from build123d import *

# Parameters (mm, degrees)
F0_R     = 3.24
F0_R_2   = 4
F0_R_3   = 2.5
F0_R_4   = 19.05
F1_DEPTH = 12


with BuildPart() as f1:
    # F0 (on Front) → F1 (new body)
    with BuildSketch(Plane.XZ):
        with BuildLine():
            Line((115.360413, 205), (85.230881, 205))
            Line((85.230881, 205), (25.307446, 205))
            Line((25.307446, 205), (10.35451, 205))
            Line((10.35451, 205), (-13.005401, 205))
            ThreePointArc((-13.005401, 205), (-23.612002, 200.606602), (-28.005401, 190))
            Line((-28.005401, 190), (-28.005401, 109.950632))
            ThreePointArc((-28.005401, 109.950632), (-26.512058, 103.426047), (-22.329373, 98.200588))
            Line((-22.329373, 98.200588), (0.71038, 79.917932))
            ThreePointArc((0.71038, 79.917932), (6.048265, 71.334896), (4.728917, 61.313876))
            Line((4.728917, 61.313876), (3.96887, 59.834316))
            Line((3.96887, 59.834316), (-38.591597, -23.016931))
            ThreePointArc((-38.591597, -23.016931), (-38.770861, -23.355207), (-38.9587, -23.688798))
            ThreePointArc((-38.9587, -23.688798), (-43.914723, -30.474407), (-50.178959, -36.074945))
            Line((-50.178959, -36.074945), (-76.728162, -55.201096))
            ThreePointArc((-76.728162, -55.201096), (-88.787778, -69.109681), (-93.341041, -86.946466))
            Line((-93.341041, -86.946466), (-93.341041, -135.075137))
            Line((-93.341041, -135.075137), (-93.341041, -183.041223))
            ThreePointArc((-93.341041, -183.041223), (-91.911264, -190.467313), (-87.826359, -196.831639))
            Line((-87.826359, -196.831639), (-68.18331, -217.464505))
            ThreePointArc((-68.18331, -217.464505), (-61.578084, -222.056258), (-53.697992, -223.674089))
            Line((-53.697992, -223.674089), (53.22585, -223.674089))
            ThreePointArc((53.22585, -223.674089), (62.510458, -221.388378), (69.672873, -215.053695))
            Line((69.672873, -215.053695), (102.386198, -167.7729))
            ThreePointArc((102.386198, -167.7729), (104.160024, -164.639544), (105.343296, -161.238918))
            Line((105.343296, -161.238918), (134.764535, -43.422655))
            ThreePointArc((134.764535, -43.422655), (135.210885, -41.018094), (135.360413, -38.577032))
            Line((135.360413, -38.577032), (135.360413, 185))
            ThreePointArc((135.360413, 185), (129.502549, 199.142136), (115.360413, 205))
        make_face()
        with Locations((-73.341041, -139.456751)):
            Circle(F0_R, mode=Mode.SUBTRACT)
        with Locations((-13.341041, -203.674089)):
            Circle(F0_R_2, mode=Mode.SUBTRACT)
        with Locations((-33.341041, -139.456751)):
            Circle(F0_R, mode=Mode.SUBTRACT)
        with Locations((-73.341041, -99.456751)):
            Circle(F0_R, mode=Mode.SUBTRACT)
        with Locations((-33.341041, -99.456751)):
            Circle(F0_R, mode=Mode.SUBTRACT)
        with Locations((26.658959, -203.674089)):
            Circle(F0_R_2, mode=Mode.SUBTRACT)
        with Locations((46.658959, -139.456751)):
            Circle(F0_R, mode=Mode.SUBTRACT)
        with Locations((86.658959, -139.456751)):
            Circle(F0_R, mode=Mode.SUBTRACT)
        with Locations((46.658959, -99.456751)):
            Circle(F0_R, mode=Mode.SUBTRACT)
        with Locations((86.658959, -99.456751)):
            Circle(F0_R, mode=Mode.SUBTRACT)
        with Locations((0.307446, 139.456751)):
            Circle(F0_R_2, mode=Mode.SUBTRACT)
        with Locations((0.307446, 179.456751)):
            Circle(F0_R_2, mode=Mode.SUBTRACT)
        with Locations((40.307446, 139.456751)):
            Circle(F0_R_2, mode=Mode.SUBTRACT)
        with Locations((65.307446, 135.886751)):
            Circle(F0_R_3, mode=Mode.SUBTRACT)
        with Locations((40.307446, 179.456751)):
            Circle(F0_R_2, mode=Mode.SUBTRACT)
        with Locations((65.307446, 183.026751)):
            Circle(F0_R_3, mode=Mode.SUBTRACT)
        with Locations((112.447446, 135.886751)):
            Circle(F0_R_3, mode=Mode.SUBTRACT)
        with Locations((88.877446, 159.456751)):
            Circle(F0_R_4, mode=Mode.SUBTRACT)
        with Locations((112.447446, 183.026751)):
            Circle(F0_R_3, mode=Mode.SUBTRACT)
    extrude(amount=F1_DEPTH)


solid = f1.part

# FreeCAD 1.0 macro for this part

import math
import FreeCAD as App
import Part
import Sketcher

V = App.Vector
Q = App.Units.Quantity

doc = App.newDocument("Part")
body = doc.addObject("PartDesign::Body", "Body")

sketch1 = body.newObject("Sketcher::SketchObject", "Sketch")
sketch1.AttachmentSupport = (doc.getObject("XZ_Plane"), [""])
sketch1.MapMode = "FlatFace"
sketch1.addGeometry(Part.LineSegment(V(115.360413, 205, 0), V(-13.005401, 205, 0)), False)
sketch1.addGeometry(Part.ArcOfCircle(Part.Circle(V(-13.0054, 189.999999, 0), V(0, 0, 1), 15.000001), math.radians(90.000003), math.radians(179.999997)), False)
sketch1.addGeometry(Part.LineSegment(V(-28.005401, 190, 0), V(-28.005401, 109.950632, 0)), False)
sketch1.addGeometry(Part.ArcOfCircle(Part.Circle(V(-13.005401, 109.950633, 0), V(0, 0, 1), 15), math.radians(-179.999998), math.radians(-128.432933)), False)
sketch1.addGeometry(Part.LineSegment(V(-22.329373, 98.200588, 0), V(0.71038, 79.917932, 0)), False)
sketch1.addGeometry(Part.ArcOfCircle(Part.Circle(V(-8.613594, 68.167886, 0), V(0, 0, 1), 15.000002), math.radians(-27.189438), math.radians(51.567063)), False)
sketch1.addGeometry(Part.LineSegment(V(4.728917, 61.313876, 0), V(3.96887, 59.834316, 0)), False)
sketch1.addGeometry(Part.LineSegment(V(3.96887, 59.834316, 0), V(-38.591597, -23.016931, 0)), False)
sketch1.addGeometry(Part.ArcOfCircle(Part.Circle(V(-51.933711, -16.163126, 0), V(0, 0, 1), 14.999555), math.radians(-30.114279), math.radians(-27.189432)), False)
sketch1.addGeometry(Part.ArcOfCircle(Part.Circle(V(-73.559777, -3.619795, 0), V(0, 0, 1), 39.999992), math.radians(-54.230873), math.radians(-30.114202)), False)
sketch1.addGeometry(Part.LineSegment(V(-50.178959, -36.074945, 0), V(-76.728162, -55.201096, 0)), False)
sketch1.addGeometry(Part.ArcOfCircle(Part.Circle(V(-53.347338, -87.656252, 0), V(0, 0, 1), 40.000001), math.radians(125.769129), math.radians(178.983254)), False)
sketch1.addGeometry(Part.LineSegment(V(-93.341041, -86.946466, 0), V(-93.341041, -183.041223, 0)), False)
sketch1.addGeometry(Part.ArcOfCircle(Part.Circle(V(-73.341037, -183.041222, 0), V(0, 0, 1), 20.000004), math.radians(-179.999997), math.radians(-136.407818)), False)
sketch1.addGeometry(Part.LineSegment(V(-87.826359, -196.831639, 0), V(-68.18331, -217.464505, 0)), False)
sketch1.addGeometry(Part.ArcOfCircle(Part.Circle(V(-53.69799, -203.674084, 0), V(0, 0, 1), 20.000005), math.radians(-136.407805), math.radians(-90.000006)), False)
sketch1.addGeometry(Part.LineSegment(V(-53.697992, -223.674089, 0), V(53.22585, -223.674089, 0)), False)
sketch1.addGeometry(Part.ArcOfCircle(Part.Circle(V(53.225848, -203.674085, 0), V(0, 0, 1), 20.000004), math.radians(-89.999994), math.radians(-34.679155)), False)
sketch1.addGeometry(Part.LineSegment(V(69.672873, -215.053695, 0), V(102.386198, -167.7729, 0)), False)
sketch1.addGeometry(Part.ArcOfCircle(Part.Circle(V(85.939155, -156.393286, 0), V(0, 0, 1), 20.000021), math.radians(-34.679136), math.radians(-14.021226)), False)
sketch1.addGeometry(Part.LineSegment(V(105.343296, -161.238918, 0), V(134.764535, -43.422655, 0)), False)
sketch1.addGeometry(Part.ArcOfCircle(Part.Circle(V(115.360466, -38.57704, 0), V(0, 0, 1), 19.999947), math.radians(-14.021229), math.radians(0.000022)), False)
sketch1.addGeometry(Part.LineSegment(V(135.360413, -38.577032, 0), V(135.360413, 185, 0)), False)
sketch1.addGeometry(Part.ArcOfCircle(Part.Circle(V(115.360414, 185.000001, 0), V(0, 0, 1), 19.999999), math.radians(-0.000004), math.radians(90.000004)), False)
sketch1.addGeometry(Part.Circle(V(-73.341041, -139.456751, 0), V(0, 0, 1), 3.24), False)
sketch1.addGeometry(Part.Circle(V(-33.341041, -139.456751, 0), V(0, 0, 1), 3.24), False)
sketch1.addGeometry(Part.Circle(V(-13.341041, -203.674089, 0), V(0, 0, 1), 4), False)
sketch1.addGeometry(Part.Circle(V(-73.341041, -99.456751, 0), V(0, 0, 1), 3.24), False)
sketch1.addGeometry(Part.Circle(V(-33.341041, -99.456751, 0), V(0, 0, 1), 3.24), False)
sketch1.addGeometry(Part.Circle(V(26.658959, -203.674089, 0), V(0, 0, 1), 4), False)
sketch1.addGeometry(Part.Circle(V(46.658959, -139.456751, 0), V(0, 0, 1), 3.24), False)
sketch1.addGeometry(Part.Circle(V(86.658959, -139.456751, 0), V(0, 0, 1), 3.24), False)
sketch1.addGeometry(Part.Circle(V(46.658959, -99.456751, 0), V(0, 0, 1), 3.24), False)
sketch1.addGeometry(Part.Circle(V(86.658959, -99.456751, 0), V(0, 0, 1), 3.24), False)
sketch1.addGeometry(Part.Circle(V(0.307446, 139.456751, 0), V(0, 0, 1), 4), False)
sketch1.addGeometry(Part.Circle(V(0.307446, 179.456751, 0), V(0, 0, 1), 4), False)
sketch1.addGeometry(Part.Circle(V(65.307446, 135.886751, 0), V(0, 0, 1), 2.5), False)
sketch1.addGeometry(Part.Circle(V(40.307446, 139.456751, 0), V(0, 0, 1), 4), False)
sketch1.addGeometry(Part.Circle(V(40.307446, 179.456751, 0), V(0, 0, 1), 4), False)
sketch1.addGeometry(Part.Circle(V(65.307446, 183.026751, 0), V(0, 0, 1), 2.5), False)
sketch1.addGeometry(Part.Circle(V(112.447446, 135.886751, 0), V(0, 0, 1), 2.5), False)
sketch1.addGeometry(Part.Circle(V(88.877446, 159.456751, 0), V(0, 0, 1), 19.05), False)
sketch1.addGeometry(Part.Circle(V(112.447446, 183.026751, 0), V(0, 0, 1), 2.5), False)
sketch1.addConstraint(Sketcher.Constraint("Coincident", 0, 2, 1, 1))
sketch1.addConstraint(Sketcher.Constraint("Coincident", 1, 2, 2, 1))
sketch1.addConstraint(Sketcher.Constraint("Coincident", 2, 2, 3, 1))
sketch1.addConstraint(Sketcher.Constraint("Coincident", 3, 2, 4, 1))
sketch1.addConstraint(Sketcher.Constraint("Coincident", 4, 2, 5, 2))
sketch1.addConstraint(Sketcher.Constraint("Coincident", 5, 1, 6, 1))
sketch1.addConstraint(Sketcher.Constraint("Coincident", 6, 2, 7, 1))
sketch1.addConstraint(Sketcher.Constraint("Coincident", 7, 2, 8, 2))
sketch1.addConstraint(Sketcher.Constraint("Coincident", 8, 1, 9, 2))
sketch1.addConstraint(Sketcher.Constraint("Coincident", 9, 1, 10, 1))
sketch1.addConstraint(Sketcher.Constraint("Coincident", 10, 2, 11, 1))
sketch1.addConstraint(Sketcher.Constraint("Coincident", 11, 2, 12, 1))
sketch1.addConstraint(Sketcher.Constraint("Coincident", 12, 2, 13, 1))
sketch1.addConstraint(Sketcher.Constraint("Coincident", 13, 2, 14, 1))
sketch1.addConstraint(Sketcher.Constraint("Coincident", 14, 2, 15, 1))
sketch1.addConstraint(Sketcher.Constraint("Coincident", 15, 2, 16, 1))
sketch1.addConstraint(Sketcher.Constraint("Coincident", 16, 2, 17, 1))
sketch1.addConstraint(Sketcher.Constraint("Coincident", 17, 2, 18, 1))
sketch1.addConstraint(Sketcher.Constraint("Coincident", 18, 2, 19, 1))
sketch1.addConstraint(Sketcher.Constraint("Coincident", 19, 2, 20, 1))
sketch1.addConstraint(Sketcher.Constraint("Coincident", 20, 2, 21, 1))
sketch1.addConstraint(Sketcher.Constraint("Coincident", 21, 2, 22, 1))
sketch1.addConstraint(Sketcher.Constraint("Coincident", 22, 2, 23, 1))
sketch1.addConstraint(Sketcher.Constraint("Coincident", 23, 2, 0, 1))
sketch1.addConstraint(Sketcher.Constraint("Horizontal", 0))
sketch1.addConstraint(Sketcher.Constraint("Vertical", 2))
sketch1.addConstraint(Sketcher.Constraint("Vertical", 12))
sketch1.addConstraint(Sketcher.Constraint("Horizontal", 16))
sketch1.addConstraint(Sketcher.Constraint("Vertical", 22))
sketch1.addConstraint(Sketcher.Constraint("Diameter", 26, Q("8 mm")))
sketch1.addConstraint(Sketcher.Constraint("Diameter", 29, Q("8 mm")))
sketch1.addConstraint(Sketcher.Constraint("Diameter", 34, Q("8 mm")))
sketch1.addConstraint(Sketcher.Constraint("Diameter", 35, Q("8 mm")))
sketch1.addConstraint(Sketcher.Constraint("Diameter", 36, Q("5 mm")))
sketch1.addConstraint(Sketcher.Constraint("Diameter", 37, Q("8 mm")))
sketch1.addConstraint(Sketcher.Constraint("Diameter", 38, Q("8 mm")))
sketch1.addConstraint(Sketcher.Constraint("Diameter", 39, Q("5 mm")))
sketch1.addConstraint(Sketcher.Constraint("Diameter", 40, Q("5 mm")))
sketch1.addConstraint(Sketcher.Constraint("Diameter", 42, Q("5 mm")))
sketch1.addConstraint(Sketcher.Constraint("Radius", 1, Q("15.000001 mm")))
sketch1.addConstraint(Sketcher.Constraint("Radius", 3, Q("15 mm")))
sketch1.addConstraint(Sketcher.Constraint("Radius", 11, Q("40.000001 mm")))
sketch1.addConstraint(Sketcher.Constraint("Radius", 23, Q("19.999999 mm")))
sketch1.addConstraint(Sketcher.Constraint("Diameter", 41, Q("38.1 mm")))
sketch1.addConstraint(Sketcher.Constraint("Diameter", 24, Q("6.48 mm")))
sketch1.addConstraint(Sketcher.Constraint("Diameter", 25, Q("6.48 mm")))
sketch1.addConstraint(Sketcher.Constraint("Diameter", 27, Q("6.48 mm")))
sketch1.addConstraint(Sketcher.Constraint("Diameter", 28, Q("6.48 mm")))
sketch1.addConstraint(Sketcher.Constraint("Diameter", 30, Q("6.48 mm")))
sketch1.addConstraint(Sketcher.Constraint("Diameter", 31, Q("6.48 mm")))
sketch1.addConstraint(Sketcher.Constraint("Diameter", 32, Q("6.48 mm")))
sketch1.addConstraint(Sketcher.Constraint("Diameter", 33, Q("6.48 mm")))
sketch1.addConstraint(Sketcher.Constraint("DistanceY", -1, 1, 1, 3, Q("189.999999 mm")))
sketch1.addConstraint(Sketcher.Constraint("DistanceY", -1, 1, 1, 2, Q("190 mm")))
sketch1.addConstraint(Sketcher.Constraint("DistanceY", -1, 1, 22, 2, Q("185 mm")))
sketch1.addConstraint(Sketcher.Constraint("DistanceX", 24, 3, 25, 3, Q("40 mm")))
sketch1.addConstraint(Sketcher.Constraint("DistanceX", 25, 3, 26, 3, Q("20 mm")))
sketch1.addConstraint(Sketcher.Constraint("DistanceY", 24, 3, 27, 3, Q("40 mm")))
sketch1.addConstraint(Sketcher.Constraint("DistanceX", 27, 3, 25, 3, Q("40 mm")))
sketch1.addConstraint(Sketcher.Constraint("DistanceY", 25, 3, 27, 3, Q("40 mm")))
sketch1.addConstraint(Sketcher.Constraint("DistanceY", 25, 3, 28, 3, Q("40 mm")))
sketch1.addConstraint(Sketcher.Constraint("DistanceX", 27, 3, 28, 3, Q("40 mm")))
sketch1.addConstraint(Sketcher.Constraint("DistanceX", 26, 3, 29, 3, Q("40 mm")))
sketch1.addConstraint(Sketcher.Constraint("DistanceX", 29, 3, 30, 3, Q("20 mm")))
sketch1.addConstraint(Sketcher.Constraint("DistanceX", 30, 3, 31, 3, Q("40 mm")))
sketch1.addConstraint(Sketcher.Constraint("DistanceY", 30, 3, 32, 3, Q("40 mm")))
sketch1.addConstraint(Sketcher.Constraint("DistanceX", 32, 3, 31, 3, Q("40 mm")))
sketch1.addConstraint(Sketcher.Constraint("DistanceY", 31, 3, 32, 3, Q("40 mm")))
sketch1.addConstraint(Sketcher.Constraint("DistanceY", 25, 3, 32, 3, Q("40 mm")))
sketch1.addConstraint(Sketcher.Constraint("DistanceX", 32, 3, 33, 3, Q("40 mm")))
sketch1.addConstraint(Sketcher.Constraint("DistanceY", 31, 3, 33, 3, Q("40 mm")))
sketch1.addConstraint(Sketcher.Constraint("DistanceY", 34, 3, 35, 3, Q("40 mm")))
sketch1.addConstraint(Sketcher.Constraint("DistanceX", 34, 3, 36, 3, Q("65 mm")))
sketch1.addConstraint(Sketcher.Constraint("DistanceX", 35, 3, 36, 3, Q("65 mm")))
sketch1.addConstraint(Sketcher.Constraint("DistanceX", 37, 3, 36, 3, Q("25 mm")))
sketch1.addConstraint(Sketcher.Constraint("DistanceY", 37, 3, 35, 3, Q("40 mm")))
sketch1.addConstraint(Sketcher.Constraint("DistanceX", 35, 3, 38, 3, Q("40 mm")))
sketch1.addConstraint(Sketcher.Constraint("DistanceY", 37, 3, 38, 3, Q("40 mm")))
sketch1.addConstraint(Sketcher.Constraint("DistanceX", 38, 3, 39, 3, Q("25 mm")))
sketch1.addConstraint(Sketcher.Constraint("DistanceY", 37, 3, 41, 3, Q("20 mm")))
sketch1.addConstraint(Sketcher.Constraint("DistanceX", 1, 2, 0, 2, Q("15 mm")))
sketch1.addConstraint(Sketcher.Constraint("DistanceX", 11, 2, 27, 3, Q("20 mm")))
sketch1.addConstraint(Sketcher.Constraint("DistanceY", 15, 2, 26, 3, Q("20 mm")))
sketch1.addConstraint(Sketcher.Constraint("DistanceY", 16, 2, 29, 3, Q("20 mm")))
sketch1.addConstraint(Sketcher.Constraint("DistanceX", 23, 2, 22, 2, Q("20 mm")))
sketch1.addConstraint(Sketcher.Constraint("Radius", 19, Q("20.000021 mm")))
sketch1.addConstraint(Sketcher.Constraint("DistanceY", 36, 3, 34, 3, Q("3.57 mm")))
sketch1.addConstraint(Sketcher.Constraint("DistanceY", 38, 3, 39, 3, Q("3.57 mm")))
sketch1.addConstraint(Sketcher.Constraint("DistanceX", 36, 3, 40, 3, Q("47.14 mm")))
sketch1.addConstraint(Sketcher.Constraint("DistanceY", 40, 3, 39, 3, Q("47.14 mm")))
sketch1.addConstraint(Sketcher.Constraint("DistanceX", 41, 3, 40, 3, Q("23.57 mm")))
sketch1.addConstraint(Sketcher.Constraint("DistanceX", 41, 3, 42, 3, Q("23.57 mm")))
sketch1.addConstraint(Sketcher.Constraint("DistanceY", 41, 3, 42, 3, Q("23.57 mm")))
sketch1.addConstraint(Sketcher.Constraint("Radius", 5, Q("15.000002 mm")))
sketch1.addConstraint(Sketcher.Constraint("Radius", 8, Q("14.999555 mm")))
sketch1.addConstraint(Sketcher.Constraint("Radius", 9, Q("39.999992 mm")))
sketch1.addConstraint(Sketcher.Constraint("Radius", 13, Q("20.000004 mm")))
sketch1.addConstraint(Sketcher.Constraint("Radius", 15, Q("20.000005 mm")))
sketch1.addConstraint(Sketcher.Constraint("Radius", 17, Q("20.000004 mm")))
sketch1.addConstraint(Sketcher.Constraint("Radius", 21, Q("19.999947 mm")))
sketch1.addConstraint(Sketcher.Constraint("DistanceY", 2, 2, 2, 1, Q("80.049368 mm")))
sketch1.addConstraint(Sketcher.Constraint("DistanceY", 22, 1, 22, 2, Q("223.577032 mm")))
sketch1.addConstraint(Sketcher.Constraint("DistanceX", 1, 3, -1, 1, Q("13.0054 mm")))
sketch1.addConstraint(Sketcher.Constraint("DistanceX", 8, 1, -1, 1, Q("38.9587 mm")))
sketch1.addConstraint(Sketcher.Constraint("DistanceY", 8, 1, -1, 1, Q("23.688798 mm")))
sketch1.addConstraint(Sketcher.Constraint("DistanceY", 18, 2, -1, 1, Q("167.7729 mm")))
sketch1.addConstraint(Sketcher.Constraint("DistanceX", 13, 3, 11, 3, Q("19.993699 mm")))
sketch1.addConstraint(Sketcher.Constraint("DistanceY", 17, 3, 19, 3, Q("47.280799 mm")))
sketch1.addConstraint(Sketcher.Constraint("DistanceY", 24, 3, 11, 3, Q("51.800499 mm")))
sketch1.addConstraint(Sketcher.Constraint("DistanceY", 5, 3, 3, 2, Q("30.032702 mm")))
sketch1.addConstraint(Sketcher.Constraint("DistanceY", 4, 2, 3, 3, Q("30.032701 mm")))
sketch1.addConstraint(Sketcher.Constraint("DistanceY", 4, 2, 2, 2, Q("30.0327 mm")))
sketch1.addConstraint(Sketcher.Constraint("Distance", 4, Q("29.41234 mm")))
sketch1.addConstraint(Sketcher.Constraint("Distance", 6, Q("1.663361 mm")))
sketch1.addConstraint(Sketcher.Constraint("Distance", 7, Q("93.143558 mm")))
sketch1.addConstraint(Sketcher.Constraint("Distance", 10, Q("32.721092 mm")))
sketch1.addConstraint(Sketcher.Constraint("Distance", 14, Q("28.487972 mm")))
sketch1.addConstraint(Sketcher.Constraint("DistanceX", 0, 2, 0, 1, Q("128.365814 mm")))
sketch1.addConstraint(Sketcher.Constraint("DistanceX", 16, 1, 16, 2, Q("106.923842 mm")))
sketch1.addConstraint(Sketcher.Constraint("DistanceY", 12, 2, 12, 1, Q("96.094757 mm")))
sketch1.addConstraint(Sketcher.Constraint("DistanceX", 8, 3, -1, 1, Q("51.933711 mm")))
sketch1.addConstraint(Sketcher.Constraint("DistanceX", 11, 3, -1, 1, Q("53.347338 mm")))
sketch1.addConstraint(Sketcher.Constraint("DistanceY", 11, 3, -1, 1, Q("87.656252 mm")))
sketch1.addConstraint(Sketcher.Constraint("DistanceY", 13, 3, -1, 1, Q("183.041222 mm")))
sketch1.addConstraint(Sketcher.Constraint("DistanceX", 15, 3, -1, 1, Q("53.69799 mm")))
sketch1.addConstraint(Sketcher.Constraint("DistanceX", -1, 1, 17, 3, Q("53.225848 mm")))
sketch1.addConstraint(Sketcher.Constraint("DistanceY", 21, 3, -1, 1, Q("38.57704 mm")))
sketch1.addConstraint(Sketcher.Constraint("DistanceY", 26, 3, -1, 1, Q("203.674089 mm")))
sketch1.addConstraint(Sketcher.Constraint("DistanceY", -1, 1, 34, 3, Q("139.456751 mm")))
sketch1.addConstraint(Sketcher.Constraint("DistanceX", -1, 1, 4, 2, Q("0.71038 mm")))
sketch1.addConstraint(Sketcher.Constraint("DistanceX", -1, 1, 6, 2, Q("3.96887 mm")))
sketch1.addConstraint(Sketcher.Constraint("DistanceY", 7, 2, -1, 1, Q("23.016931 mm")))
sketch1.addConstraint(Sketcher.Constraint("DistanceX", 9, 1, -1, 1, Q("50.178959 mm")))
sketch1.addConstraint(Sketcher.Constraint("DistanceX", 10, 2, -1, 1, Q("76.728162 mm")))
sketch1.addConstraint(Sketcher.Constraint("DistanceX", 13, 2, -1, 1, Q("87.826359 mm")))
sketch1.addConstraint(Sketcher.Constraint("DistanceX", -1, 1, 16, 2, Q("53.22585 mm")))
sketch1.addConstraint(Sketcher.Constraint("DistanceX", 19, 3, 21, 3, Q("29.42131 mm")))
sketch1.addConstraint(Sketcher.Constraint("DistanceX", 5, 3, 34, 3, Q("8.92104 mm")))
sketch1.addConstraint(Sketcher.Constraint("DistanceY", 17, 2, 17, 3, Q("11.37961 mm")))
sketch1.addConstraint(Sketcher.Constraint("DistanceX", 19, 3, 19, 2, Q("19.404141 mm")))
sketch1.addConstraint(Sketcher.Constraint("DistanceX", 21, 3, 20, 2, Q("19.404069 mm")))
pad1 = body.newObject("PartDesign::Pad", "Pad")
pad1.Profile = sketch1
pad1.Length = 12

doc.recompute()
